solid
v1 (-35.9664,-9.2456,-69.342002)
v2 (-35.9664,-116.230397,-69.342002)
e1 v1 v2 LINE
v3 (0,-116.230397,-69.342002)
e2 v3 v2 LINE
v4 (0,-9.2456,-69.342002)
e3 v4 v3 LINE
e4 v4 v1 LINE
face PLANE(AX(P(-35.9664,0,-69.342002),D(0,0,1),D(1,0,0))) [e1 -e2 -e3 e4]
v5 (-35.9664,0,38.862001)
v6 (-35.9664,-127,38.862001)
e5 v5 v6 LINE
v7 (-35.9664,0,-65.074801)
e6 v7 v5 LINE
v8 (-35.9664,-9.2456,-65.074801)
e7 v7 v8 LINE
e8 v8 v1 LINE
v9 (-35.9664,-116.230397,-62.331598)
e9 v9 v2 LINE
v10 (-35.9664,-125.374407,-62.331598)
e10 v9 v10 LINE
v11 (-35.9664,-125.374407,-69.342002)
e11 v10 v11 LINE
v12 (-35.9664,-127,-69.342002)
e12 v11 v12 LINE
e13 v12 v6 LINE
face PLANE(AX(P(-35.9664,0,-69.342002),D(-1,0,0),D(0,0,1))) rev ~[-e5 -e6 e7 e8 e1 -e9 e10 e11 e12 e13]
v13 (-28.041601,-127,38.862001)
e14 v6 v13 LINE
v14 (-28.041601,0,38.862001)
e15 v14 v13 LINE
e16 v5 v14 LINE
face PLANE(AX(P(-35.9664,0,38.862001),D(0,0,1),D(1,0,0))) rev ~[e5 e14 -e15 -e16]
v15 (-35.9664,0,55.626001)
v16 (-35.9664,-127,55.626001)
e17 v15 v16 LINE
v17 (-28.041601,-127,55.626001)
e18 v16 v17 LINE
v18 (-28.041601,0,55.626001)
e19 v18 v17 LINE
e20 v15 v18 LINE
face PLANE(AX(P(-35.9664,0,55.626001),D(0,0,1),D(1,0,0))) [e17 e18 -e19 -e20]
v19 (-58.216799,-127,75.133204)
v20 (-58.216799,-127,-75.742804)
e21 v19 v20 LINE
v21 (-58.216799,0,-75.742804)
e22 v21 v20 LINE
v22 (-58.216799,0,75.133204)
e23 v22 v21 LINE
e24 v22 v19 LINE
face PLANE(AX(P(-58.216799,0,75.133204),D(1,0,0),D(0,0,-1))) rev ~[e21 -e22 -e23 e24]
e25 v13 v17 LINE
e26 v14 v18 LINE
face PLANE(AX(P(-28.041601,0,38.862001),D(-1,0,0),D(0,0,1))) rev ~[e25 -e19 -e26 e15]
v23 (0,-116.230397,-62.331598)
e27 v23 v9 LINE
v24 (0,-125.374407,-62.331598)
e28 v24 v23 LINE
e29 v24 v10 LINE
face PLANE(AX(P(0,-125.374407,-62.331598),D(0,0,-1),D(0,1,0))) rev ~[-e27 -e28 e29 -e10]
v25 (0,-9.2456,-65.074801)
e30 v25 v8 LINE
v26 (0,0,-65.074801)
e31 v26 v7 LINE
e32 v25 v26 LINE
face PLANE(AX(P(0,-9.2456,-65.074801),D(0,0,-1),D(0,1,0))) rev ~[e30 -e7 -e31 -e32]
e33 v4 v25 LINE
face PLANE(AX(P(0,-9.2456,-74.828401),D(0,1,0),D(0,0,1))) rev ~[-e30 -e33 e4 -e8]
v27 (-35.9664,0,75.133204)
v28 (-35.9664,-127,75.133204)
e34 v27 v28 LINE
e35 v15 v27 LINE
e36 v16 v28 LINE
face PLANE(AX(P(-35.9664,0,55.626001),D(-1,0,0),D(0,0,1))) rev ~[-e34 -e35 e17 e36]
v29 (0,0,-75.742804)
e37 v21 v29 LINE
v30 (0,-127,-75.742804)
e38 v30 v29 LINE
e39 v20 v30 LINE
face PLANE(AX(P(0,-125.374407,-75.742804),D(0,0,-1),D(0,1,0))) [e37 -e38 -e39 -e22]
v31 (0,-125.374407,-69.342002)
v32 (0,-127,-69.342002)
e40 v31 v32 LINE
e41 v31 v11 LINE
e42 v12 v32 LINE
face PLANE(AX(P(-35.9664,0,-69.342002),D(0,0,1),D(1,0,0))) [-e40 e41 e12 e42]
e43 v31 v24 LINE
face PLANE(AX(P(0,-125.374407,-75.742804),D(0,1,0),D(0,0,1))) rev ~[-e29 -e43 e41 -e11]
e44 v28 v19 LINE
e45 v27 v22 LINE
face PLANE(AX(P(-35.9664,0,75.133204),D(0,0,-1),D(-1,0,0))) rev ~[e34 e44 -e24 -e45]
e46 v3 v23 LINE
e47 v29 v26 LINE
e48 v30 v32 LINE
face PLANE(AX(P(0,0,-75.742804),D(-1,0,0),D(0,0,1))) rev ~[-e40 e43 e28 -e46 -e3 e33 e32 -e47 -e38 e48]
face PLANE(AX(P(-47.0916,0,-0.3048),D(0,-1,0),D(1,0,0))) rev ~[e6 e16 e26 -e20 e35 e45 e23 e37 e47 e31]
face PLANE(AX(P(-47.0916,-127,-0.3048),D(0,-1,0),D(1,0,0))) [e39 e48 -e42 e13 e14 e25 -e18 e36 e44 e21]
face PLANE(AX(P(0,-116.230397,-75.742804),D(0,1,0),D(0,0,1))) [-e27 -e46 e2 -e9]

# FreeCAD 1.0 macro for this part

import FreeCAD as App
import Part
import Sketcher

V = App.Vector
Q = App.Units.Quantity

doc = App.newDocument("Part")
body = doc.addObject("PartDesign::Body", "Body")

# Sketch on XZ plane
sketch1 = body.newObject("Sketcher::SketchObject", "Sketch")
sketch1.AttachmentSupport = (doc.getObject("XZ_Plane"), [""])
sketch1.MapMode = "FlatFace"
sketch1.addGeometry([
    Part.LineSegment(V(-36, 56, 0), V(-36, 75, 0)),  # 0
    Part.LineSegment(V(-36, 75, 0), V(-58, 75, 0)),  # 1
    Part.LineSegment(V(-58, 75, 0), V(-58, -76, 0)),  # 2
    Part.LineSegment(V(-58, -76, 0), V(0, -76, 0)),  # 3
    Part.LineSegment(V(0, -76, 0), V(0, -69, 0)),  # 4
    Part.LineSegment(V(0, -69, 0), V(-36, -69, 0)),  # 5
    Part.LineSegment(V(-36, -69, 0), V(-36, 39, 0)),  # 6
    Part.LineSegment(V(-36, 39, 0), V(-28, 39, 0)),  # 7
    Part.LineSegment(V(-28, 39, 0), V(-28, 56, 0)),  # 8
    Part.LineSegment(V(-28, 56, 0), V(-36, 56, 0)),  # 9
], False)
sketch1.addConstraint([
    Sketcher.Constraint("Coincident", 0, 2, 1, 1),
    Sketcher.Constraint("Coincident", 1, 2, 2, 1),
    Sketcher.Constraint("Coincident", 2, 2, 3, 1),
    Sketcher.Constraint("Coincident", 3, 2, 4, 1),
    Sketcher.Constraint("Coincident", 4, 2, 5, 1),
    Sketcher.Constraint("Coincident", 5, 2, 6, 1),
    Sketcher.Constraint("Coincident", 6, 2, 7, 1),
    Sketcher.Constraint("Coincident", 7, 2, 8, 1),
    Sketcher.Constraint("Coincident", 8, 2, 9, 1),
    Sketcher.Constraint("Coincident", 9, 2, 0, 1),
    Sketcher.Constraint("Vertical", 0),
    Sketcher.Constraint("Horizontal", 1),
    Sketcher.Constraint("Vertical", 2),
    Sketcher.Constraint("Horizontal", 3),
    Sketcher.Constraint("Vertical", 4),
    Sketcher.Constraint("Horizontal", 5),
    Sketcher.Constraint("Vertical", 6),
    Sketcher.Constraint("Horizontal", 7),
    Sketcher.Constraint("Vertical", 8),
    Sketcher.Constraint("Horizontal", 9),
    Sketcher.Constraint("PointOnObject", 3, 2, -2),
    Sketcher.Constraint("Vertical", 0, 2, 5, 2),
    Sketcher.Constraint("DistanceY", 6, 1, 6, 2, Q("4.2600001 in")),
    Sketcher.Constraint("DistanceY", 8, 1, 8, 2, Q("0.66 in")),
    Sketcher.Constraint("DistanceX", 1, 2, 1, 1, Q("0.876 in")),
    Sketcher.Constraint("DistanceX", 3, 1, 3, 2, Q("2.292 in")),
    Sketcher.Constraint("DistanceX", 7, 1, 7, 2, Q("0.3119999 in")),
    Sketcher.Constraint("DistanceY", 0, 1, 0, 2, Q("0.7680001 in")),
    Sketcher.Constraint("DistanceY", 4, 1, 4, 2, Q("0.2520001 in")),
    Sketcher.Constraint("DistanceY", 4, 2, -1, 1, Q("2.7300001 in")),
])
pad1 = body.newObject("PartDesign::Pad", "Pad")
pad1.Profile = sketch1
pad1.Length = Q("5 in")

# Sketch on YZ plane
sketch2 = body.newObject("Sketcher::SketchObject", "Sketch001")
sketch2.AttachmentSupport = (doc.getObject("YZ_Plane"), [""])
sketch2.MapMode = "FlatFace"
sketch2.addGeometry([
    Part.LineSegment(V(-125, -62, 0), V(-125, -76, 0)),  # 0
    Part.LineSegment(V(-125, -76, 0), V(-116, -76, 0)),  # 1
    Part.LineSegment(V(-116, -76, 0), V(-116, -62, 0)),  # 2
    Part.LineSegment(V(-116, -62, 0), V(-125, -62, 0)),  # 3
    Part.LineSegment(V(-9, -65, 0), V(-9, -75, 0)),  # 4
    Part.LineSegment(V(-9, -75, 0), V(0, -75, 0)),  # 5
    Part.LineSegment(V(0, -75, 0), V(0, -65, 0)),  # 6
    Part.LineSegment(V(0, -65, 0), V(-9, -65, 0)),  # 7
], False)
sketch2.addConstraint([
    Sketcher.Constraint("Coincident", 0, 2, 1, 1),
    Sketcher.Constraint("Coincident", 1, 2, 2, 1),
    Sketcher.Constraint("Coincident", 2, 2, 3, 1),
    Sketcher.Constraint("Coincident", 3, 2, 0, 1),
    Sketcher.Constraint("Coincident", 4, 2, 5, 1),
    Sketcher.Constraint("Coincident", 5, 2, 6, 1),
    Sketcher.Constraint("Coincident", 6, 2, 7, 1),
    Sketcher.Constraint("Coincident", 7, 2, 4, 1),
    Sketcher.Constraint("Vertical", 0),
    Sketcher.Constraint("Horizontal", 1),
    Sketcher.Constraint("Vertical", 2),
    Sketcher.Constraint("Horizontal", 3),
    Sketcher.Constraint("Vertical", 4),
    Sketcher.Constraint("Horizontal", 5),
    Sketcher.Constraint("Vertical", 6),
    Sketcher.Constraint("Horizontal", 7),
    Sketcher.Constraint("PointOnObject", 5, 2, -2),
    Sketcher.Constraint("DistanceX", 5, 1, 5, 2, Q("0.364 in")),
    Sketcher.Constraint("DistanceY", 4, 2, 4, 1, Q("0.384 in")),
    Sketcher.Constraint("DistanceY", 1, 2, 6, 2, Q("0.4200001 in")),
    Sketcher.Constraint("DistanceY", 0, 2, -1, 1, Q("2.9820002 in")),
    Sketcher.Constraint("DistanceX", 1, 2, -1, 1, Q("4.5759999 in")),
    Sketcher.Constraint("DistanceY", 2, 2, -1, 1, Q("2.4539999 in")),
    Sketcher.Constraint("DistanceX", 1, 1, 1, 2, 9.144009),
])
pad2 = body.newObject("PartDesign::Pad", "Pad001")
pad2.Profile = sketch2
pad2.Length = Q("2.03 in")
pad2.Reversed = True

doc.recompute()
